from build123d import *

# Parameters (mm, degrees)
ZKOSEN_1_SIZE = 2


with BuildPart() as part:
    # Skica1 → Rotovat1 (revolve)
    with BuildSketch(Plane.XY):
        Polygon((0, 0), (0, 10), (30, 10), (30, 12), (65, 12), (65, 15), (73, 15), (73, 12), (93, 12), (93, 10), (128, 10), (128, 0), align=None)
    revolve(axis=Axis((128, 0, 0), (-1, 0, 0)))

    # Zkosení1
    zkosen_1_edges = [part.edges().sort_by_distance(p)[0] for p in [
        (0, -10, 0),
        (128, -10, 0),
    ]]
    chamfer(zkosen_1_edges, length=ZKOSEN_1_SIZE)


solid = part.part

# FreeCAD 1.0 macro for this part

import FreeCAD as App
import Part
import Sketcher

V = App.Vector


def edges_at(feature, points):
    """Names of the edges that pass closest to the given points."""
    edges = feature.Shape.Edges
    near = lambda p: min(range(len(edges)), key=lambda i: edges[i].distToShape(Part.Vertex(*p))[0])
    return sorted({f"Edge{near(p) + 1}" for p in points})


def add_polygon(sketch, points):
    """Adds a closed chain of lines whose ends are joined by coincident constraints."""
    first, n = sketch.GeometryCount, len(points)
    for a, b in zip(points, points[1:] + points[:1]):
        sketch.addGeometry(Part.LineSegment(App.Vector(*a, 0), App.Vector(*b, 0)), False)
    for i in range(n):
        sketch.addConstraint(Sketcher.Constraint("Coincident", first + i, 2, first + (i + 1) % n, 1))

doc = App.newDocument("Part")
params = doc.addObject("Spreadsheet::Sheet", "Params")
for row, (alias, value) in enumerate([
    ("sketch1_width", "128 mm"),
    ("sketch1_width2", "35 mm"),
    ("sketch1_width3", "20 mm"),
    ("sketch1_width4", "8 mm"),
    ("sketch1_height", "10 mm"),
    ("revolution_angle", "360 deg"),
    ("chamfer_size", "2 mm"),
], start=1):
    params.set(f"A{row}", alias)
    params.set(f"B{row}", "=" + value)
    params.setAlias(f"B{row}", alias)

body = doc.addObject("PartDesign::Body", "Body")

sketch1 = body.newObject("Sketcher::SketchObject", "Sketch")
sketch1.AttachmentSupport = (doc.getObject("XY_Plane"), [""])
sketch1.MapMode = "FlatFace"
add_polygon(sketch1, [(0, 10), (0, 0), (128, 0), (128, 10), (93, 10), (93, 12), (73, 12), (73, 15), (65, 15), (65, 12), (30, 12), (30, 10)])
sketch1.addConstraint(Sketcher.Constraint("Vertical", 0))
sketch1.addConstraint(Sketcher.Constraint("Horizontal", 1))
sketch1.addConstraint(Sketcher.Constraint("Vertical", 2))
sketch1.addConstraint(Sketcher.Constraint("Horizontal", 3))
sketch1.addConstraint(Sketcher.Constraint("Vertical", 4))
sketch1.addConstraint(Sketcher.Constraint("Horizontal", 5))
sketch1.addConstraint(Sketcher.Constraint("Vertical", 6))
sketch1.addConstraint(Sketcher.Constraint("Horizontal", 7))
sketch1.addConstraint(Sketcher.Constraint("Vertical", 8))
sketch1.addConstraint(Sketcher.Constraint("Horizontal", 9))
sketch1.addConstraint(Sketcher.Constraint("Vertical", 10))
sketch1.addConstraint(Sketcher.Constraint("Horizontal", 11))
sketch1.addConstraint(Sketcher.Constraint("Coincident", 0, 2, -1, 1))
sketch1.addConstraint(Sketcher.Constraint("Horizontal", 5, 2, 8, 2))
sketch1.addConstraint(Sketcher.Constraint("Horizontal", 3, 2, 10, 2))
sketch1.addConstraint(Sketcher.Constraint("Equal", 3, 9))
sketch1.addConstraint(Sketcher.Constraint("DistanceX", 1, 1, 1, 2, 128.0))
sketch1.addConstraint(Sketcher.Constraint("DistanceX", 3, 2, 3, 1, 35.0))
sketch1.addConstraint(Sketcher.Constraint("DistanceX", 5, 2, 5, 1, 20.0))
sketch1.addConstraint(Sketcher.Constraint("DistanceX", 7, 2, 7, 1, 8.0))
sketch1.addConstraint(Sketcher.Constraint("DistanceY", 0, 2, 0, 1, 10.0))
sketch1.addConstraint(Sketcher.Constraint("DistanceY", 4, 1, 4, 2, 2.0))
sketch1.addConstraint(Sketcher.Constraint("DistanceY", 6, 1, 6, 2, 3.0))
sketch1.setExpression("Constraints[28]", "Params.sketch1_width")
sketch1.setExpression("Constraints[29]", "Params.sketch1_width2")
sketch1.setExpression("Constraints[30]", "Params.sketch1_width3")
sketch1.setExpression("Constraints[31]", "Params.sketch1_width4")
sketch1.setExpression("Constraints[32]", "Params.sketch1_height")
revolution = body.newObject("PartDesign::Revolution", "Revolution")
revolution.Profile = sketch1
revolution.ReferenceAxis = (sketch1, ["H_Axis"])
revolution.setExpression("Angle", "Params.revolution_angle")
doc.recompute()

chamfer = body.newObject("PartDesign::Chamfer", "Chamfer")
chamfer.Base = (revolution, edges_at(revolution, [(0, -10, 0), (128, -10, 0)]))
chamfer.setExpression("Size", "Params.chamfer_size")

doc.recompute()
